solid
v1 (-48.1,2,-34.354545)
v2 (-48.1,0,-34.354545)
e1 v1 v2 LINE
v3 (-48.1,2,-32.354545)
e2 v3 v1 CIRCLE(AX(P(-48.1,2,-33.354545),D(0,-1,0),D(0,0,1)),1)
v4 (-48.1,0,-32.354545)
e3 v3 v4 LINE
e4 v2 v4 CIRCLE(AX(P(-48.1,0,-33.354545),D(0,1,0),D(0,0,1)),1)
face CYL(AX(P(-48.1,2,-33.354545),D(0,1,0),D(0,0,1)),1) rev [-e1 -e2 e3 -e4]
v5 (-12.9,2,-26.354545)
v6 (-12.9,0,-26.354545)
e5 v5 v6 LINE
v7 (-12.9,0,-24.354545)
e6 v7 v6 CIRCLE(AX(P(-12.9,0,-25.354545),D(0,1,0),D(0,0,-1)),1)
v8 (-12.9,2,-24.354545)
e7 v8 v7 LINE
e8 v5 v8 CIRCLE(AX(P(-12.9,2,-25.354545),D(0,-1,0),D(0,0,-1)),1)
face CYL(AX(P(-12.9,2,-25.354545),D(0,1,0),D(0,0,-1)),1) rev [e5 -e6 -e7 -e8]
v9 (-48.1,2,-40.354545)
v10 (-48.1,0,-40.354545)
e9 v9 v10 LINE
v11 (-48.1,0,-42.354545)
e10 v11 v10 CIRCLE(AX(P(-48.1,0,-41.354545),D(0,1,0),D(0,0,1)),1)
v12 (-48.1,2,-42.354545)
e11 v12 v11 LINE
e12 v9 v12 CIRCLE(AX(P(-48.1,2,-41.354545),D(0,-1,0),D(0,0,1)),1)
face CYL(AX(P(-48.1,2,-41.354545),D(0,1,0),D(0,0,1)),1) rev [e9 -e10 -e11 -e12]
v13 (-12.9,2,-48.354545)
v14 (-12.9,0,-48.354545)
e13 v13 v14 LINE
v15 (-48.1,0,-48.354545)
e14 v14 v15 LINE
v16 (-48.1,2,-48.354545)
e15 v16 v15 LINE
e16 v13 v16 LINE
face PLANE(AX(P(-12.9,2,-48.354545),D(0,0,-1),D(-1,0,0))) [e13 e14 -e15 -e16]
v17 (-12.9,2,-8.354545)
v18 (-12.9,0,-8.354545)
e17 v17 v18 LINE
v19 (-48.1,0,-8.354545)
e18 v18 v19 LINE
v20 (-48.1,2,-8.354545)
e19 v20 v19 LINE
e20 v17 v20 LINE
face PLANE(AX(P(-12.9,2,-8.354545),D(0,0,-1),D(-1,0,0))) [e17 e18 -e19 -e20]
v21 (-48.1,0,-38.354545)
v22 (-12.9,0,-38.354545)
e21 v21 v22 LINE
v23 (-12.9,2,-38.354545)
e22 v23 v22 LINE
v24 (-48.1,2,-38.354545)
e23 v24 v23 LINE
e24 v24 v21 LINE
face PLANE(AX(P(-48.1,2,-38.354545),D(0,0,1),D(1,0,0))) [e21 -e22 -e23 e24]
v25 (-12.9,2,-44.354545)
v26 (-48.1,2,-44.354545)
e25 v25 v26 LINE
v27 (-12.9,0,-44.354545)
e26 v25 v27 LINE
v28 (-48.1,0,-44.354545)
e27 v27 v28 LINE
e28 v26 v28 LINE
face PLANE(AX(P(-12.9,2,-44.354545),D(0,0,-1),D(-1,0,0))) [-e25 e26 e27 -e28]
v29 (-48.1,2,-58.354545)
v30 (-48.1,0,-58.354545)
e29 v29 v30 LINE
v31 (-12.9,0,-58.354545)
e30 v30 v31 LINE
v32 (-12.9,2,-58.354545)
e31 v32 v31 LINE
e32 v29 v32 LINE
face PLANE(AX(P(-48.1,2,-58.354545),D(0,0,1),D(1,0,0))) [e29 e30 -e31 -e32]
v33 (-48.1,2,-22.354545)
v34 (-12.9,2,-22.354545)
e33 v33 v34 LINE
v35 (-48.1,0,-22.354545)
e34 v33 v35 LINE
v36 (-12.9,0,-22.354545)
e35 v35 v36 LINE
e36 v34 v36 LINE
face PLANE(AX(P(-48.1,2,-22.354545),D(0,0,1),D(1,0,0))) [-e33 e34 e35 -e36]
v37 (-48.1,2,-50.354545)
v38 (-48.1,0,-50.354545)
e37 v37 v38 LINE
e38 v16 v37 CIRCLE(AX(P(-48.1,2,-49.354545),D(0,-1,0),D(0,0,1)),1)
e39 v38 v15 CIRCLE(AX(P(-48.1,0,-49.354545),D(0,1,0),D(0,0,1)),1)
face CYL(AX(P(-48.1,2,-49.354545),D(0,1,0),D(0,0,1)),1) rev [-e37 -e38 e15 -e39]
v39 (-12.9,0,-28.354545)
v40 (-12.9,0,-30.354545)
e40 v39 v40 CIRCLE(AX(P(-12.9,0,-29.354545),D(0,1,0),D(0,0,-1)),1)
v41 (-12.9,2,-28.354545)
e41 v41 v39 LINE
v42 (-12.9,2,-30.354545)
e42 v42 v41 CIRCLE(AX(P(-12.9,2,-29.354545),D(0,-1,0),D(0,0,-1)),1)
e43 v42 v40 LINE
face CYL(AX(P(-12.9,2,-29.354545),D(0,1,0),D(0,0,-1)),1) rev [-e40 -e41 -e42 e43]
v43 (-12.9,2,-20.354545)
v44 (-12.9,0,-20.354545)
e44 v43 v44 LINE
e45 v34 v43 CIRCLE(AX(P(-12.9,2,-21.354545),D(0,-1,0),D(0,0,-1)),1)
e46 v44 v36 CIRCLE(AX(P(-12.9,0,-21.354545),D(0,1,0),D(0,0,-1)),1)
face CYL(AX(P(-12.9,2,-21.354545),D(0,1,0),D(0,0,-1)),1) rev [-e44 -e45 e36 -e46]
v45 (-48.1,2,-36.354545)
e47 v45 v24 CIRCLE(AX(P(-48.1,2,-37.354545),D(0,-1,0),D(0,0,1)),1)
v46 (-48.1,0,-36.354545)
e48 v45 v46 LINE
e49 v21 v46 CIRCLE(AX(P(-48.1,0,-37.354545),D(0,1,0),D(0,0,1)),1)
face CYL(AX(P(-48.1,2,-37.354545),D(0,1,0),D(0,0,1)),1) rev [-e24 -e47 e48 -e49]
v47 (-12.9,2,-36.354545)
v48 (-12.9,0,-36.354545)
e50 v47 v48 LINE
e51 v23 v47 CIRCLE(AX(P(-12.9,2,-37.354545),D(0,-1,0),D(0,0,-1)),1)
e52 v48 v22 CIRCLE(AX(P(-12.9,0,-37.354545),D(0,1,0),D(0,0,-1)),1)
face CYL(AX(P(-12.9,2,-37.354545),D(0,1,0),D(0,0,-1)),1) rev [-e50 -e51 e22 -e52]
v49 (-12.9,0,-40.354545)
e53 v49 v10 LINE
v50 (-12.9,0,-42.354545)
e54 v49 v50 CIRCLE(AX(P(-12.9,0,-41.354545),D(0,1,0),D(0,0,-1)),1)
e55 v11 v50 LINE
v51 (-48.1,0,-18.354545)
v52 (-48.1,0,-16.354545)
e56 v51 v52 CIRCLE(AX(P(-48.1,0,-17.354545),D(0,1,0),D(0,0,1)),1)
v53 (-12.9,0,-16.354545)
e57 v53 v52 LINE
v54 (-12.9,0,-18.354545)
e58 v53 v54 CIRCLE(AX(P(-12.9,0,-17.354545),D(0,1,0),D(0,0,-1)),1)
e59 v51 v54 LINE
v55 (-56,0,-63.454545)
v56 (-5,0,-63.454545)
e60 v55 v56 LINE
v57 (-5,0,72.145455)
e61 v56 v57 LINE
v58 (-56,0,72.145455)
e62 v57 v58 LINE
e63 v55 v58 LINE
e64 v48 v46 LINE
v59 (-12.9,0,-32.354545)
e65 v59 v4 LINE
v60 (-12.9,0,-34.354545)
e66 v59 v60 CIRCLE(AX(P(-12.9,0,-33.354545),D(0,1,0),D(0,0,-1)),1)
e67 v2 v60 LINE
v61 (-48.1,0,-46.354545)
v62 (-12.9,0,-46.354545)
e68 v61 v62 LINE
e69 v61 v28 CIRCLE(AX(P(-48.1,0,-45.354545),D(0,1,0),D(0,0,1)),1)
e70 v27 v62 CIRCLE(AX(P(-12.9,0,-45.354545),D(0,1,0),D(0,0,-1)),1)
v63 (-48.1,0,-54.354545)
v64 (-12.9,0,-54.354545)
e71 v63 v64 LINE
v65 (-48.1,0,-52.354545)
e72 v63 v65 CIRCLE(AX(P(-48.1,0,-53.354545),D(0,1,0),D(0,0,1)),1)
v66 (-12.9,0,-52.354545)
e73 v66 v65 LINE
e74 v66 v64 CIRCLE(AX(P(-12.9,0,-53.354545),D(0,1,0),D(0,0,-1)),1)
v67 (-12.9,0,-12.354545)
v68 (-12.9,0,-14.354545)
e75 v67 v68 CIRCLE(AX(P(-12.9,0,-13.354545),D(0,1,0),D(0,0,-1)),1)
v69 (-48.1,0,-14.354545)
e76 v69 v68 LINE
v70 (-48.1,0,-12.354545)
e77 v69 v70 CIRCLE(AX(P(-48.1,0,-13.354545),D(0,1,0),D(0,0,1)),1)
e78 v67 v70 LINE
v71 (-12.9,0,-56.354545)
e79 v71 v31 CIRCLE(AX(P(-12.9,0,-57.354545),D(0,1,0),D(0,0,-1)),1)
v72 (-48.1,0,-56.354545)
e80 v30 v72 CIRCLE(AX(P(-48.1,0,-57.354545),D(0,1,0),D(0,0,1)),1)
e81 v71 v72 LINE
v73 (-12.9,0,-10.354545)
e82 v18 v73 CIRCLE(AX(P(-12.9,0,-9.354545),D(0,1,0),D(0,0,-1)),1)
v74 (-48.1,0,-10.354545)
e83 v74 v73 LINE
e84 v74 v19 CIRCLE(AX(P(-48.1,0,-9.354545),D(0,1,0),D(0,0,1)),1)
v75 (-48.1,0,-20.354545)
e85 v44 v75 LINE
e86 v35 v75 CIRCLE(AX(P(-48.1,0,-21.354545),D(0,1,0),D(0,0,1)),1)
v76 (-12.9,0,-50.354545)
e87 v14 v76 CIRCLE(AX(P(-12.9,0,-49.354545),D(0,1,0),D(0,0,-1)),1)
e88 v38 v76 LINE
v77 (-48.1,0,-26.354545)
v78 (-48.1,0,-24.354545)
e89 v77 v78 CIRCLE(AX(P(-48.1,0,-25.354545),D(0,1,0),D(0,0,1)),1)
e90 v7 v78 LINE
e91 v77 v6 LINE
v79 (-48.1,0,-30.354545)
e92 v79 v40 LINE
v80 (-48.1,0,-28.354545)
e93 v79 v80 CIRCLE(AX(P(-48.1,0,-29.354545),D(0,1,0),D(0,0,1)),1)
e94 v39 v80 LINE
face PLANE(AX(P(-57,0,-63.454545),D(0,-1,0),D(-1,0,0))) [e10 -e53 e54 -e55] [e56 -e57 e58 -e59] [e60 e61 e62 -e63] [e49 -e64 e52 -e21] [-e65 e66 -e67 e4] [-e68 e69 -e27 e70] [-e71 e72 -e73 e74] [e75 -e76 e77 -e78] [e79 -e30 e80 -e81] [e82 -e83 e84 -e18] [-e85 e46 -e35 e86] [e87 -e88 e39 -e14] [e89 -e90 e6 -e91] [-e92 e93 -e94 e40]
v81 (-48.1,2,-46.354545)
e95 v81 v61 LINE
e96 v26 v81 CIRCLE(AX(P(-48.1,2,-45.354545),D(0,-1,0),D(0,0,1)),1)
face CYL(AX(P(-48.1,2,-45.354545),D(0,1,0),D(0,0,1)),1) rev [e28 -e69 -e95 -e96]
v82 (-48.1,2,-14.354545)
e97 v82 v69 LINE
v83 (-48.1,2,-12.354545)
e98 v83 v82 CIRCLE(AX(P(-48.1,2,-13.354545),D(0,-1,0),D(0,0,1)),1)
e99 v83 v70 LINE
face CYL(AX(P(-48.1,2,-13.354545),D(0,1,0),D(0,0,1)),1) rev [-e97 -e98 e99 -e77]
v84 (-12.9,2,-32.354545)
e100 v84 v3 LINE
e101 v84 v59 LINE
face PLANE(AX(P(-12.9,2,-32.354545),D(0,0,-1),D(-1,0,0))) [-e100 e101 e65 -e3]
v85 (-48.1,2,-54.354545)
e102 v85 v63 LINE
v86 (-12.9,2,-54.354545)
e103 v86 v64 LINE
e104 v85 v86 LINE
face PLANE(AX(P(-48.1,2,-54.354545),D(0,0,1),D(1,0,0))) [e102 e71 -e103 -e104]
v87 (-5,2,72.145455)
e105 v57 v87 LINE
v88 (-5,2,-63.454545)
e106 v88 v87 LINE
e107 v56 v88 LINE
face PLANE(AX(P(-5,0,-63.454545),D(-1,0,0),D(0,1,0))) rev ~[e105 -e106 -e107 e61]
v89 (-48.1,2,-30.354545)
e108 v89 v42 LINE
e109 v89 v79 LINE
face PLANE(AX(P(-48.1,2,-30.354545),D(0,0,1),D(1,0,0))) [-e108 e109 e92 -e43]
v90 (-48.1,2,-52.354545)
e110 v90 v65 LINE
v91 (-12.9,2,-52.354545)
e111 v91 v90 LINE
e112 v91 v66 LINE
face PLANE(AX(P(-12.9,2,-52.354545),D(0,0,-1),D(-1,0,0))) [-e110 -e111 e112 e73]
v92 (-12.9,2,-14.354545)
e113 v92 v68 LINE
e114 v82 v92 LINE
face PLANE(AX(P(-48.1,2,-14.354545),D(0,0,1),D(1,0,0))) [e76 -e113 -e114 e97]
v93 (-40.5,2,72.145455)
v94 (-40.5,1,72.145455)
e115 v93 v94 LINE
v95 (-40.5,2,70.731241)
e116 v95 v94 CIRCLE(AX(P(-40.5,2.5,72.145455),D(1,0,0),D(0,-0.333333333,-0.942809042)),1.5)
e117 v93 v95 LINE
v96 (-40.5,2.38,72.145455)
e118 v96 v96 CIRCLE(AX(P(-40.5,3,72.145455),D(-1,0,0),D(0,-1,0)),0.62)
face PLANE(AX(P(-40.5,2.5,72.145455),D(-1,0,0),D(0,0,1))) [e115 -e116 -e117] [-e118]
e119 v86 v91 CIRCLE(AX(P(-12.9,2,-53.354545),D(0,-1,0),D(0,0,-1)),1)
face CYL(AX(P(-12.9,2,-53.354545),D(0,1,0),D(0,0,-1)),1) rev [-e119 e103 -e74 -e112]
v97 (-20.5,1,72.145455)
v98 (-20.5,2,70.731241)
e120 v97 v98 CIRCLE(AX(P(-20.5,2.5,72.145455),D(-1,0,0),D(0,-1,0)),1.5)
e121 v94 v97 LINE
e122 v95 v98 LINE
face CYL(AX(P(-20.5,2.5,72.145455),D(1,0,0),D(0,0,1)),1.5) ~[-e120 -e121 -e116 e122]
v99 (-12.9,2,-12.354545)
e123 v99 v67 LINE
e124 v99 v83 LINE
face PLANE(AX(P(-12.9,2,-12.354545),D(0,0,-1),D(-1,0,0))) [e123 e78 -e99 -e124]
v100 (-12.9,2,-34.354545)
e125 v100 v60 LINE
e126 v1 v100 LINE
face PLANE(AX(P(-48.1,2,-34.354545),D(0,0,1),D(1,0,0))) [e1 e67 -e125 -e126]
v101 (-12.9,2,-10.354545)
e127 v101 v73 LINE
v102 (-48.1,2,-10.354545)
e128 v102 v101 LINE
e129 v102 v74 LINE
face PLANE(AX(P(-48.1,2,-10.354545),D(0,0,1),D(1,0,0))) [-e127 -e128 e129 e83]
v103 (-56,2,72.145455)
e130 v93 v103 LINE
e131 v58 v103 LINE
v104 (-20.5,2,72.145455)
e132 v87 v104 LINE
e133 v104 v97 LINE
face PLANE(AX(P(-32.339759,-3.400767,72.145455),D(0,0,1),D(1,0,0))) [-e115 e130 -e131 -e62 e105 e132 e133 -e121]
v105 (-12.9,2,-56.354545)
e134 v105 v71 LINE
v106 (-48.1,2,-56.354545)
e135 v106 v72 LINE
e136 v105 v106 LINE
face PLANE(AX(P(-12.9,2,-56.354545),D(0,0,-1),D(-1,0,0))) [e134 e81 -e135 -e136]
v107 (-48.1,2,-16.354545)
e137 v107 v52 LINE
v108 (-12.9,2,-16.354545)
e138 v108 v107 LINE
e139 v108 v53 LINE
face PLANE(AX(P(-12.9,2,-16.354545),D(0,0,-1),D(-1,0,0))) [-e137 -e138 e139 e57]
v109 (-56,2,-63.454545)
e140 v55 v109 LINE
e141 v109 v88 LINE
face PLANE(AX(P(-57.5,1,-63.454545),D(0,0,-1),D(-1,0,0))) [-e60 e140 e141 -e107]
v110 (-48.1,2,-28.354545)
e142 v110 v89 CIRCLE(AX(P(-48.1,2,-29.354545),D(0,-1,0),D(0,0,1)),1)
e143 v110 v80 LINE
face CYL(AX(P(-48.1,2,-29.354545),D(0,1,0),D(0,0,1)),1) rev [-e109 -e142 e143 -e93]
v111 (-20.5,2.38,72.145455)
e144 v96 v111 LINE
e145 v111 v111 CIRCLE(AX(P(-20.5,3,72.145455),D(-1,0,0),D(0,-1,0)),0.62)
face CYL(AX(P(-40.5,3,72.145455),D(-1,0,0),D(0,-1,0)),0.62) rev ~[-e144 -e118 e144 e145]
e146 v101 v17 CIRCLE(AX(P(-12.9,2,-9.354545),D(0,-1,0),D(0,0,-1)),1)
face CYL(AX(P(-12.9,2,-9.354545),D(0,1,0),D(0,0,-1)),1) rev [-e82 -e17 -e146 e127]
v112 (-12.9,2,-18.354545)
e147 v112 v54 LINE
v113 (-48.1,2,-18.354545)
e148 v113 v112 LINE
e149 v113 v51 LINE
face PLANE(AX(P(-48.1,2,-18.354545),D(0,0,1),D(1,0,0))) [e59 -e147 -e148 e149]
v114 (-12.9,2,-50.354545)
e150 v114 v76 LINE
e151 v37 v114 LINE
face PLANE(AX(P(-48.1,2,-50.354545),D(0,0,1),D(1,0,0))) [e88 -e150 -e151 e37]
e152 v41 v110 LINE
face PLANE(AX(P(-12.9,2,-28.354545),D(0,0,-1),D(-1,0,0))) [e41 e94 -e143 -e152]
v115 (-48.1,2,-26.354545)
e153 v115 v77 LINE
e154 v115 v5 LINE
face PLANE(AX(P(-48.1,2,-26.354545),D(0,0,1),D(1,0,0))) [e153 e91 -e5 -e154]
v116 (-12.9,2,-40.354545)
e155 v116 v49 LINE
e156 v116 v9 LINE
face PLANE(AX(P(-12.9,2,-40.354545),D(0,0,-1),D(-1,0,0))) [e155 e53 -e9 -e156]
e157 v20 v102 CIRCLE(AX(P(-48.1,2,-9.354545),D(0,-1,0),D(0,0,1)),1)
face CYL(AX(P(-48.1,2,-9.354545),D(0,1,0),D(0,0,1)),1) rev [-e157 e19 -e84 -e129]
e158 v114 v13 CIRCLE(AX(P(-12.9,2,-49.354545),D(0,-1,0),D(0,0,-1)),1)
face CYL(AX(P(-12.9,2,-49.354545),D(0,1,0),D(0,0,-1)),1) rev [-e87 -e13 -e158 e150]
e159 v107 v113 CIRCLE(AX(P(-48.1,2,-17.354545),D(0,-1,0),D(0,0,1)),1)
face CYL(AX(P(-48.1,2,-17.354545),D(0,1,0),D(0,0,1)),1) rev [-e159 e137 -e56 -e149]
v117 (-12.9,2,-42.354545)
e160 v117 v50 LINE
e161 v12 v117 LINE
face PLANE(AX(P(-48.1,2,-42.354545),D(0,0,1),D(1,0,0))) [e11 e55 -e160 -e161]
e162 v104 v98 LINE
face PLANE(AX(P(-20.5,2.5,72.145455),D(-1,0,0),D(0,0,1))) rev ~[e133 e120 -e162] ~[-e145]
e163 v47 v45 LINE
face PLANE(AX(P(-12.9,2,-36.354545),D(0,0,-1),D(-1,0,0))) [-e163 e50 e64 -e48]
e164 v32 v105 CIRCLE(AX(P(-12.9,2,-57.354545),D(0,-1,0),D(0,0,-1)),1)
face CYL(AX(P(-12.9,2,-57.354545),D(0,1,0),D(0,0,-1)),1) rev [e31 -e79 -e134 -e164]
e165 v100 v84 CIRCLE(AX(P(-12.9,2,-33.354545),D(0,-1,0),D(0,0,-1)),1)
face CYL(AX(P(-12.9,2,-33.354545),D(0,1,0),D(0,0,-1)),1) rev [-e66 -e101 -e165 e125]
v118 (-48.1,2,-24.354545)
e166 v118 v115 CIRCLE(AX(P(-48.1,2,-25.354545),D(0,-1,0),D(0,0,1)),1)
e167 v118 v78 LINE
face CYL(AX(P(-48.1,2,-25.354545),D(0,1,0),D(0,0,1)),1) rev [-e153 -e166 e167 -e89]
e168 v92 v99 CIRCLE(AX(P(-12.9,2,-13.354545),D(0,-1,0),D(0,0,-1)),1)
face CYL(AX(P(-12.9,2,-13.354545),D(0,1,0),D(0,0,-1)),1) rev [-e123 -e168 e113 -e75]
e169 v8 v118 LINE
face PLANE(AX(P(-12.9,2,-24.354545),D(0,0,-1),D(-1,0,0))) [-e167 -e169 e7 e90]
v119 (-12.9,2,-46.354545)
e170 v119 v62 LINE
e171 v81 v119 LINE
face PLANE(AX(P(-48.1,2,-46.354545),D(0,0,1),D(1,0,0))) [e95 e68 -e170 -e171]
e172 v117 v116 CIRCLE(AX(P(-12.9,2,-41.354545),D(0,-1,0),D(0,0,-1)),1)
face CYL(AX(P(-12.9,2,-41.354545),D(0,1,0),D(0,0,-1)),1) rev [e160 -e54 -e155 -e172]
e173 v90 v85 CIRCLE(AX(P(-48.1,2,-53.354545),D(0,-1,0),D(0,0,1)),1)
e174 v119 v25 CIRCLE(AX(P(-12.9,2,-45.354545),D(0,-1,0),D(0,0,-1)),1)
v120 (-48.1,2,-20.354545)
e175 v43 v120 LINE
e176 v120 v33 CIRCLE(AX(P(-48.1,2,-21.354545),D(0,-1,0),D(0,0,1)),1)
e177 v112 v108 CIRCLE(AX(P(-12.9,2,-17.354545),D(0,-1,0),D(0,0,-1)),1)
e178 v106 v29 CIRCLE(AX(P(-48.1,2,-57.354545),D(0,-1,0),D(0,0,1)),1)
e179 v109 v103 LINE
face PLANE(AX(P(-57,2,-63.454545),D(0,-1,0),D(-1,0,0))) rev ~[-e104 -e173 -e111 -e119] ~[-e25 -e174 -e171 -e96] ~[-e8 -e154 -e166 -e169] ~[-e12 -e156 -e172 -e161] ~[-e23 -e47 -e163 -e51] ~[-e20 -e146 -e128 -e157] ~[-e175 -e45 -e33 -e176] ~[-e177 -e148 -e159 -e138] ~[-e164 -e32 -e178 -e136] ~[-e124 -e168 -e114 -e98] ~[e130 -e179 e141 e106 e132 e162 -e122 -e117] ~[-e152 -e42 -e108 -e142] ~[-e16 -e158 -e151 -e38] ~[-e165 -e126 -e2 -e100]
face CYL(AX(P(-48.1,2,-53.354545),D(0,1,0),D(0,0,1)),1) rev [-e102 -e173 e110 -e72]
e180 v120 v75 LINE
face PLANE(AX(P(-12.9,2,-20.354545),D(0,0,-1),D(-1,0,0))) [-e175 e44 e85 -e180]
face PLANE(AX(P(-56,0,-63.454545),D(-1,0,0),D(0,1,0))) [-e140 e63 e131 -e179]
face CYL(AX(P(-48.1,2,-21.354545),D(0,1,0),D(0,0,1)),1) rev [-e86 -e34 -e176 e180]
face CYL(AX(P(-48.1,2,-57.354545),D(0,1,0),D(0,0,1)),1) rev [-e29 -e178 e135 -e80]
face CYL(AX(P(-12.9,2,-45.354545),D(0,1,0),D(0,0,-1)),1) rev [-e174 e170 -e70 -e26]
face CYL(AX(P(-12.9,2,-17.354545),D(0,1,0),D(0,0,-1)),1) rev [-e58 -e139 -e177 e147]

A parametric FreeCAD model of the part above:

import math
import FreeCAD as App
import Part
import Sketcher

doc = App.newDocument("Part")
body = doc.addObject("PartDesign::Body", "Body")

sketch1 = doc.addObject("Sketcher::SketchObject", "Sketch")
body.addObject(sketch1)
sketch1.AttachmentSupport = (doc.XZ_Plane, [""])
sketch1.MapMode = "FlatFace"
sketch1.addGeometry(Part.LineSegment(App.Vector(-56, -63.454545, 0), App.Vector(-56, 72.545455, 0)), False)
sketch1.addGeometry(Part.LineSegment(App.Vector(-56, 72.545455, 0), App.Vector(-5, 72.545455, 0)), False)
sketch1.addGeometry(Part.LineSegment(App.Vector(-5, 72.545455, 0), App.Vector(-5, -63.454545, 0)), False)
sketch1.addGeometry(Part.LineSegment(App.Vector(-5, -63.454545, 0), App.Vector(-56, -63.454545, 0)), False)
sketch1.addConstraint(Sketcher.Constraint("Coincident", 0, 2, 1, 1))
sketch1.addConstraint(Sketcher.Constraint("Coincident", 1, 2, 2, 1))
sketch1.addConstraint(Sketcher.Constraint("Coincident", 2, 2, 3, 1))
sketch1.addConstraint(Sketcher.Constraint("Coincident", 3, 2, 0, 1))
sketch1.addConstraint(Sketcher.Constraint("Vertical", 0))
sketch1.addConstraint(Sketcher.Constraint("Horizontal", 1))
sketch1.addConstraint(Sketcher.Constraint("Vertical", 2))
sketch1.addConstraint(Sketcher.Constraint("Horizontal", 3))
sketch1.addConstraint(Sketcher.Constraint("DistanceX", 1, 1, 1, 2, 51.0))
sketch1.addConstraint(Sketcher.Constraint("DistanceY", 0, 1, 0, 2, 136.0))
sketch1.addConstraint(Sketcher.Constraint("DistanceX", 0, 2, -1, 1, 56.0))
sketch1.addConstraint(Sketcher.Constraint("DistanceY", -1, 1, 0, 2, 72.545455))
pad1 = doc.addObject("PartDesign::Pad", "Pad")
body.addObject(pad1)
pad1.Profile = sketch1
pad1.Length = 2
pad1.Reversed = True

sketch2 = doc.addObject("Sketcher::SketchObject", "Sketch001")
body.addObject(sketch2)
sketch2.AttachmentSupport = (doc.XZ_Plane, [""])
sketch2.MapMode = "FlatFace"
sketch2.AttachmentOffset = App.Placement(App.Vector(0, 0, -2), App.Rotation())
sketch2.addGeometry(Part.LineSegment(App.Vector(-12.9, -58.354545, 0), App.Vector(-48.1, -58.354545, 0)), False)
sketch2.addGeometry(Part.ArcOfCircle(Part.Circle(App.Vector(-48.1, -57.354545, 0), App.Vector(0, 0, 1), 1), math.radians(90), math.radians(270)), False)
sketch2.addGeometry(Part.LineSegment(App.Vector(-48.1, -56.354545, 0), App.Vector(-12.9, -56.354545, 0)), False)
sketch2.addGeometry(Part.ArcOfCircle(Part.Circle(App.Vector(-12.9, -57.354545, 0), App.Vector(0, 0, 1), 1), math.radians(-90), math.radians(90)), False)
sketch2.addGeometry(Part.LineSegment(App.Vector(-12.9, -54.354545, 0), App.Vector(-48.1, -54.354545, 0)), False)
sketch2.addGeometry(Part.ArcOfCircle(Part.Circle(App.Vector(-48.1, -53.354545, 0), App.Vector(0, 0, 1), 1), math.radians(90), math.radians(270)), False)
sketch2.addGeometry(Part.LineSegment(App.Vector(-48.1, -52.354545, 0), App.Vector(-12.9, -52.354545, 0)), False)
sketch2.addGeometry(Part.ArcOfCircle(Part.Circle(App.Vector(-12.9, -53.354545, 0), App.Vector(0, 0, 1), 1), math.radians(-90), math.radians(90)), False)
sketch2.addGeometry(Part.LineSegment(App.Vector(-12.9, -50.354545, 0), App.Vector(-48.1, -50.354545, 0)), False)
sketch2.addGeometry(Part.ArcOfCircle(Part.Circle(App.Vector(-48.1, -49.354545, 0), App.Vector(0, 0, 1), 1), math.radians(90), math.radians(270)), False)
sketch2.addGeometry(Part.LineSegment(App.Vector(-48.1, -48.354545, 0), App.Vector(-12.9, -48.354545, 0)), False)
sketch2.addGeometry(Part.ArcOfCircle(Part.Circle(App.Vector(-12.9, -49.354545, 0), App.Vector(0, 0, 1), 1), math.radians(-90), math.radians(90)), False)
sketch2.addGeometry(Part.LineSegment(App.Vector(-12.9, -46.354545, 0), App.Vector(-48.1, -46.354545, 0)), False)
sketch2.addGeometry(Part.ArcOfCircle(Part.Circle(App.Vector(-48.1, -45.354545, 0), App.Vector(0, 0, 1), 1), math.radians(90), math.radians(270)), False)
sketch2.addGeometry(Part.LineSegment(App.Vector(-48.1, -44.354545, 0), App.Vector(-12.9, -44.354545, 0)), False)
sketch2.addGeometry(Part.ArcOfCircle(Part.Circle(App.Vector(-12.9, -45.354545, 0), App.Vector(0, 0, 1), 1), math.radians(-90), math.radians(90)), False)
sketch2.addGeometry(Part.LineSegment(App.Vector(-12.9, -42.354545, 0), App.Vector(-48.1, -42.354545, 0)), False)
sketch2.addGeometry(Part.ArcOfCircle(Part.Circle(App.Vector(-48.1, -41.354545, 0), App.Vector(0, 0, 1), 1), math.radians(90), math.radians(270)), False)
sketch2.addGeometry(Part.LineSegment(App.Vector(-48.1, -40.354545, 0), App.Vector(-12.9, -40.354545, 0)), False)
sketch2.addGeometry(Part.ArcOfCircle(Part.Circle(App.Vector(-12.9, -41.354545, 0), App.Vector(0, 0, 1), 1), math.radians(-90), math.radians(90)), False)
sketch2.addGeometry(Part.LineSegment(App.Vector(-12.9, -38.354545, 0), App.Vector(-48.1, -38.354545, 0)), False)
sketch2.addGeometry(Part.ArcOfCircle(Part.Circle(App.Vector(-48.1, -37.354545, 0), App.Vector(0, 0, 1), 1), math.radians(90), math.radians(270)), False)
sketch2.addGeometry(Part.LineSegment(App.Vector(-48.1, -36.354545, 0), App.Vector(-12.9, -36.354545, 0)), False)
sketch2.addGeometry(Part.ArcOfCircle(Part.Circle(App.Vector(-12.9, -37.354545, 0), App.Vector(0, 0, 1), 1), math.radians(-90), math.radians(90)), False)
sketch2.addGeometry(Part.LineSegment(App.Vector(-12.9, -34.354545, 0), App.Vector(-48.1, -34.354545, 0)), False)
sketch2.addGeometry(Part.ArcOfCircle(Part.Circle(App.Vector(-48.1, -33.354545, 0), App.Vector(0, 0, 1), 1), math.radians(90), math.radians(270)), False)
sketch2.addGeometry(Part.LineSegment(App.Vector(-48.1, -32.354545, 0), App.Vector(-12.9, -32.354545, 0)), False)
sketch2.addGeometry(Part.ArcOfCircle(Part.Circle(App.Vector(-12.9, -33.354545, 0), App.Vector(0, 0, 1), 1), math.radians(-90), math.radians(90)), False)
sketch2.addGeometry(Part.LineSegment(App.Vector(-12.9, -30.354545, 0), App.Vector(-48.1, -30.354545, 0)), False)
sketch2.addGeometry(Part.ArcOfCircle(Part.Circle(App.Vector(-48.1, -29.354545, 0), App.Vector(0, 0, 1), 1), math.radians(90), math.radians(270)), False)
sketch2.addGeometry(Part.LineSegment(App.Vector(-48.1, -28.354545, 0), App.Vector(-12.9, -28.354545, 0)), False)
sketch2.addGeometry(Part.ArcOfCircle(Part.Circle(App.Vector(-12.9, -29.354545, 0), App.Vector(0, 0, 1), 1), math.radians(-90), math.radians(90)), False)
sketch2.addGeometry(Part.LineSegment(App.Vector(-12.9, -26.354545, 0), App.Vector(-48.1, -26.354545, 0)), False)
sketch2.addGeometry(Part.ArcOfCircle(Part.Circle(App.Vector(-48.1, -25.354545, 0), App.Vector(0, 0, 1), 1), math.radians(90), math.radians(270)), False)
sketch2.addGeometry(Part.LineSegment(App.Vector(-48.1, -24.354545, 0), App.Vector(-12.9, -24.354545, 0)), False)
sketch2.addGeometry(Part.ArcOfCircle(Part.Circle(App.Vector(-12.9, -25.354545, 0), App.Vector(0, 0, 1), 1), math.radians(-90), math.radians(90)), False)
sketch2.addGeometry(Part.LineSegment(App.Vector(-12.9, -22.354545, 0), App.Vector(-48.1, -22.354545, 0)), False)
sketch2.addGeometry(Part.ArcOfCircle(Part.Circle(App.Vector(-48.1, -21.354545, 0), App.Vector(0, 0, 1), 1), math.radians(90), math.radians(270)), False)
sketch2.addGeometry(Part.LineSegment(App.Vector(-48.1, -20.354545, 0), App.Vector(-12.9, -20.354545, 0)), False)
sketch2.addGeometry(Part.ArcOfCircle(Part.Circle(App.Vector(-12.9, -21.354545, 0), App.Vector(0, 0, 1), 1), math.radians(-90), math.radians(90)), False)
sketch2.addGeometry(Part.LineSegment(App.Vector(-12.9, -18.354545, 0), App.Vector(-48.1, -18.354545, 0)), False)
sketch2.addGeometry(Part.ArcOfCircle(Part.Circle(App.Vector(-48.1, -17.354545, 0), App.Vector(0, 0, 1), 1), math.radians(90), math.radians(270)), False)
sketch2.addGeometry(Part.LineSegment(App.Vector(-48.1, -16.354545, 0), App.Vector(-12.9, -16.354545, 0)), False)
sketch2.addGeometry(Part.ArcOfCircle(Part.Circle(App.Vector(-12.9, -17.354545, 0), App.Vector(0, 0, 1), 1), math.radians(-90), math.radians(90)), False)
sketch2.addGeometry(Part.LineSegment(App.Vector(-12.9, -14.354545, 0), App.Vector(-48.1, -14.354545, 0)), False)
sketch2.addGeometry(Part.ArcOfCircle(Part.Circle(App.Vector(-48.1, -13.354545, 0), App.Vector(0, 0, 1), 1), math.radians(90), math.radians(270)), False)
sketch2.addGeometry(Part.LineSegment(App.Vector(-48.1, -12.354545, 0), App.Vector(-12.9, -12.354545, 0)), False)
sketch2.addGeometry(Part.ArcOfCircle(Part.Circle(App.Vector(-12.9, -13.354545, 0), App.Vector(0, 0, 1), 1), math.radians(-90), math.radians(90)), False)
sketch2.addGeometry(Part.LineSegment(App.Vector(-12.9, -10.354545, 0), App.Vector(-48.1, -10.354545, 0)), False)
sketch2.addGeometry(Part.ArcOfCircle(Part.Circle(App.Vector(-48.1, -9.354545, 0), App.Vector(0, 0, 1), 1), math.radians(90), math.radians(270)), False)
sketch2.addGeometry(Part.LineSegment(App.Vector(-48.1, -8.354545, 0), App.Vector(-12.9, -8.354545, 0)), False)
sketch2.addGeometry(Part.ArcOfCircle(Part.Circle(App.Vector(-12.9, -9.354545, 0), App.Vector(0, 0, 1), 1), math.radians(-90), math.radians(90)), False)
sketch2.addConstraint(Sketcher.Constraint("Tangent", 0, 2, 1, 2))
sketch2.addConstraint(Sketcher.Constraint("Tangent", 1, 1, 2, 1))
sketch2.addConstraint(Sketcher.Constraint("Tangent", 2, 2, 3, 2))
sketch2.addConstraint(Sketcher.Constraint("Tangent", 3, 1, 0, 1))
sketch2.addConstraint(Sketcher.Constraint("Tangent", 4, 2, 5, 2))
sketch2.addConstraint(Sketcher.Constraint("Tangent", 5, 1, 6, 1))
sketch2.addConstraint(Sketcher.Constraint("Tangent", 6, 2, 7, 2))
sketch2.addConstraint(Sketcher.Constraint("Tangent", 7, 1, 4, 1))
sketch2.addConstraint(Sketcher.Constraint("Tangent", 8, 2, 9, 2))
sketch2.addConstraint(Sketcher.Constraint("Tangent", 9, 1, 10, 1))
sketch2.addConstraint(Sketcher.Constraint("Tangent", 10, 2, 11, 2))
sketch2.addConstraint(Sketcher.Constraint("Tangent", 11, 1, 8, 1))
sketch2.addConstraint(Sketcher.Constraint("Tangent", 12, 2, 13, 2))
sketch2.addConstraint(Sketcher.Constraint("Tangent", 13, 1, 14, 1))
sketch2.addConstraint(Sketcher.Constraint("Tangent", 14, 2, 15, 2))
sketch2.addConstraint(Sketcher.Constraint("Tangent", 15, 1, 12, 1))
sketch2.addConstraint(Sketcher.Constraint("Tangent", 16, 2, 17, 2))
sketch2.addConstraint(Sketcher.Constraint("Tangent", 17, 1, 18, 1))
sketch2.addConstraint(Sketcher.Constraint("Tangent", 18, 2, 19, 2))
sketch2.addConstraint(Sketcher.Constraint("Tangent", 19, 1, 16, 1))
sketch2.addConstraint(Sketcher.Constraint("Tangent", 20, 2, 21, 2))
sketch2.addConstraint(Sketcher.Constraint("Tangent", 21, 1, 22, 1))
sketch2.addConstraint(Sketcher.Constraint("Tangent", 22, 2, 23, 2))
sketch2.addConstraint(Sketcher.Constraint("Tangent", 23, 1, 20, 1))
sketch2.addConstraint(Sketcher.Constraint("Tangent", 24, 2, 25, 2))
sketch2.addConstraint(Sketcher.Constraint("Tangent", 25, 1, 26, 1))
sketch2.addConstraint(Sketcher.Constraint("Tangent", 26, 2, 27, 2))
sketch2.addConstraint(Sketcher.Constraint("Tangent", 27, 1, 24, 1))
sketch2.addConstraint(Sketcher.Constraint("Tangent", 28, 2, 29, 2))
sketch2.addConstraint(Sketcher.Constraint("Tangent", 29, 1, 30, 1))
sketch2.addConstraint(Sketcher.Constraint("Tangent", 30, 2, 31, 2))
sketch2.addConstraint(Sketcher.Constraint("Tangent", 31, 1, 28, 1))
sketch2.addConstraint(Sketcher.Constraint("Tangent", 32, 2, 33, 2))
sketch2.addConstraint(Sketcher.Constraint("Tangent", 33, 1, 34, 1))
sketch2.addConstraint(Sketcher.Constraint("Tangent", 34, 2, 35, 2))
sketch2.addConstraint(Sketcher.Constraint("Tangent", 35, 1, 32, 1))
sketch2.addConstraint(Sketcher.Constraint("Tangent", 36, 2, 37, 2))
sketch2.addConstraint(Sketcher.Constraint("Tangent", 37, 1, 38, 1))
sketch2.addConstraint(Sketcher.Constraint("Tangent", 38, 2, 39, 2))
sketch2.addConstraint(Sketcher.Constraint("Tangent", 39, 1, 36, 1))
sketch2.addConstraint(Sketcher.Constraint("Tangent", 40, 2, 41, 2))
sketch2.addConstraint(Sketcher.Constraint("Tangent", 41, 1, 42, 1))
sketch2.addConstraint(Sketcher.Constraint("Tangent", 42, 2, 43, 2))
sketch2.addConstraint(Sketcher.Constraint("Tangent", 43, 1, 40, 1))
sketch2.addConstraint(Sketcher.Constraint("Tangent", 44, 2, 45, 2))
sketch2.addConstraint(Sketcher.Constraint("Tangent", 45, 1, 46, 1))
sketch2.addConstraint(Sketcher.Constraint("Tangent", 46, 2, 47, 2))
sketch2.addConstraint(Sketcher.Constraint("Tangent", 47, 1, 44, 1))
sketch2.addConstraint(Sketcher.Constraint("Tangent", 48, 2, 49, 2))
sketch2.addConstraint(Sketcher.Constraint("Tangent", 49, 1, 50, 1))
sketch2.addConstraint(Sketcher.Constraint("Tangent", 50, 2, 51, 2))
sketch2.addConstraint(Sketcher.Constraint("Tangent", 51, 1, 48, 1))
sketch2.addConstraint(Sketcher.Constraint("Horizontal", 0))
sketch2.addConstraint(Sketcher.Constraint("Horizontal", 2))
sketch2.addConstraint(Sketcher.Constraint("Horizontal", 4))
sketch2.addConstraint(Sketcher.Constraint("Horizontal", 6))
sketch2.addConstraint(Sketcher.Constraint("Horizontal", 8))
sketch2.addConstraint(Sketcher.Constraint("Horizontal", 10))
sketch2.addConstraint(Sketcher.Constraint("Horizontal", 12))
sketch2.addConstraint(Sketcher.Constraint("Horizontal", 14))
sketch2.addConstraint(Sketcher.Constraint("Horizontal", 16))
sketch2.addConstraint(Sketcher.Constraint("Horizontal", 18))
sketch2.addConstraint(Sketcher.Constraint("Horizontal", 20))
sketch2.addConstraint(Sketcher.Constraint("Horizontal", 22))
sketch2.addConstraint(Sketcher.Constraint("Horizontal", 24))
sketch2.addConstraint(Sketcher.Constraint("Horizontal", 26))
sketch2.addConstraint(Sketcher.Constraint("Horizontal", 28))
sketch2.addConstraint(Sketcher.Constraint("Horizontal", 30))
sketch2.addConstraint(Sketcher.Constraint("Horizontal", 32))
sketch2.addConstraint(Sketcher.Constraint("Horizontal", 34))
sketch2.addConstraint(Sketcher.Constraint("Horizontal", 36))
sketch2.addConstraint(Sketcher.Constraint("Horizontal", 38))
sketch2.addConstraint(Sketcher.Constraint("Horizontal", 40))
sketch2.addConstraint(Sketcher.Constraint("Horizontal", 42))
sketch2.addConstraint(Sketcher.Constraint("Horizontal", 44))
sketch2.addConstraint(Sketcher.Constraint("Horizontal", 46))
sketch2.addConstraint(Sketcher.Constraint("Horizontal", 48))
sketch2.addConstraint(Sketcher.Constraint("Horizontal", 50))
sketch2.addConstraint(Sketcher.Constraint("Equal", 3, 5))
sketch2.addConstraint(Sketcher.Constraint("Equal", 7, 9))
sketch2.addConstraint(Sketcher.Constraint("Equal", 11, 13))
sketch2.addConstraint(Sketcher.Constraint("Equal", 15, 17))
sketch2.addConstraint(Sketcher.Constraint("Equal", 19, 21))
sketch2.addConstraint(Sketcher.Constraint("Equal", 23, 25))
sketch2.addConstraint(Sketcher.Constraint("Equal", 27, 29))
sketch2.addConstraint(Sketcher.Constraint("Equal", 31, 33))
sketch2.addConstraint(Sketcher.Constraint("Equal", 35, 37))
sketch2.addConstraint(Sketcher.Constraint("Equal", 39, 41))
sketch2.addConstraint(Sketcher.Constraint("Equal", 43, 45))
sketch2.addConstraint(Sketcher.Constraint("Equal", 47, 49))
sketch2.addConstraint(Sketcher.Constraint("Vertical", 1, 3, 5, 3))
sketch2.addConstraint(Sketcher.Constraint("Vertical", 3, 3, 7, 3))
sketch2.addConstraint(Sketcher.Constraint("Vertical", 5, 3, 9, 3))
sketch2.addConstraint(Sketcher.Constraint("Vertical", 7, 3, 11, 3))
sketch2.addConstraint(Sketcher.Constraint("Vertical", 9, 3, 13, 3))
sketch2.addConstraint(Sketcher.Constraint("Vertical", 11, 3, 15, 3))
sketch2.addConstraint(Sketcher.Constraint("Vertical", 13, 3, 17, 3))
sketch2.addConstraint(Sketcher.Constraint("Vertical", 15, 3, 19, 3))
sketch2.addConstraint(Sketcher.Constraint("Vertical", 17, 3, 21, 3))
sketch2.addConstraint(Sketcher.Constraint("Vertical", 19, 3, 23, 3))
sketch2.addConstraint(Sketcher.Constraint("Vertical", 21, 3, 25, 3))
sketch2.addConstraint(Sketcher.Constraint("Vertical", 23, 3, 27, 3))
sketch2.addConstraint(Sketcher.Constraint("Vertical", 25, 3, 29, 3))
sketch2.addConstraint(Sketcher.Constraint("Vertical", 27, 3, 31, 3))
sketch2.addConstraint(Sketcher.Constraint("Vertical", 29, 3, 33, 3))
sketch2.addConstraint(Sketcher.Constraint("Vertical", 31, 3, 35, 3))
sketch2.addConstraint(Sketcher.Constraint("Vertical", 33, 3, 37, 3))
sketch2.addConstraint(Sketcher.Constraint("Vertical", 35, 3, 39, 3))
sketch2.addConstraint(Sketcher.Constraint("Vertical", 37, 3, 41, 3))
sketch2.addConstraint(Sketcher.Constraint("Vertical", 39, 3, 43, 3))
sketch2.addConstraint(Sketcher.Constraint("Vertical", 41, 3, 45, 3))
sketch2.addConstraint(Sketcher.Constraint("Vertical", 43, 3, 47, 3))
sketch2.addConstraint(Sketcher.Constraint("Vertical", 45, 3, 49, 3))
sketch2.addConstraint(Sketcher.Constraint("Vertical", 47, 3, 51, 3))
sketch2.addConstraint(Sketcher.Constraint("Radius", 1, 1.0))
sketch2.addConstraint(Sketcher.Constraint("DistanceX", 0, 2, 0, 1, 35.2))
sketch2.addConstraint(Sketcher.Constraint("DistanceX", 1, 3, -1, 1, 48.1))
sketch2.addConstraint(Sketcher.Constraint("DistanceY", 1, 3, -1, 1, 57.354545))
sketch2.addConstraint(Sketcher.Constraint("DistanceY", 5, 3, -1, 1, 53.354545))
sketch2.addConstraint(Sketcher.Constraint("DistanceY", 9, 3, -1, 1, 49.354545))
sketch2.addConstraint(Sketcher.Constraint("DistanceY", 13, 3, -1, 1, 45.354545))
sketch2.addConstraint(Sketcher.Constraint("DistanceY", 17, 3, -1, 1, 41.354545))
sketch2.addConstraint(Sketcher.Constraint("DistanceY", 21, 3, -1, 1, 37.354545))
sketch2.addConstraint(Sketcher.Constraint("DistanceY", 25, 3, -1, 1, 33.354545))
sketch2.addConstraint(Sketcher.Constraint("DistanceY", 29, 3, -1, 1, 29.354545))
sketch2.addConstraint(Sketcher.Constraint("DistanceY", 33, 3, -1, 1, 25.354545))
sketch2.addConstraint(Sketcher.Constraint("DistanceY", 37, 3, -1, 1, 21.354545))
sketch2.addConstraint(Sketcher.Constraint("DistanceY", 41, 3, -1, 1, 17.354545))
sketch2.addConstraint(Sketcher.Constraint("DistanceY", 45, 3, -1, 1, 13.354545))
sketch2.addConstraint(Sketcher.Constraint("DistanceY", 49, 3, -1, 1, 9.354545))
pocket1 = doc.addObject("PartDesign::Pocket", "Pocket")
body.addObject(pocket1)
pocket1.Profile = sketch2
pocket1.Length = 10
pocket1.Reversed = True

sketch3 = doc.addObject("Sketcher::SketchObject", "Sketch002")
body.addObject(sketch3)
sketch3.AttachmentSupport = (doc.XY_Plane, [""])
sketch3.MapMode = "FlatFace"
sketch3.AttachmentOffset = App.Placement(App.Vector(0, 0, -63.454545), App.Rotation())
sketch3.addGeometry(Part.LineSegment(App.Vector(-56, 2, 0), App.Vector(-56, 0, 0)), False)
sketch3.addGeometry(Part.LineSegment(App.Vector(-56, 0, 0), App.Vector(-57, 0, 0)), False)
sketch3.addGeometry(Part.LineSegment(App.Vector(-57, 0, 0), App.Vector(-57, 2, 0)), False)
sketch3.addGeometry(Part.LineSegment(App.Vector(-57, 2, 0), App.Vector(-56, 2, 0)), False)
sketch3.addGeometry(Part.LineSegment(App.Vector(-4, 2, 0), App.Vector(-4, 0, 0)), False)
sketch3.addGeometry(Part.LineSegment(App.Vector(-4, 0, 0), App.Vector(-5, 0, 0)), False)
sketch3.addGeometry(Part.LineSegment(App.Vector(-5, 0, 0), App.Vector(-5, 2, 0)), False)
sketch3.addGeometry(Part.LineSegment(App.Vector(-5, 2, 0), App.Vector(-4, 2, 0)), False)
sketch3.addConstraint(Sketcher.Constraint("Coincident", 0, 2, 1, 1))
sketch3.addConstraint(Sketcher.Constraint("Coincident", 1, 2, 2, 1))
sketch3.addConstraint(Sketcher.Constraint("Coincident", 2, 2, 3, 1))
sketch3.addConstraint(Sketcher.Constraint("Coincident", 3, 2, 0, 1))
sketch3.addConstraint(Sketcher.Constraint("Coincident", 4, 2, 5, 1))
sketch3.addConstraint(Sketcher.Constraint("Coincident", 5, 2, 6, 1))
sketch3.addConstraint(Sketcher.Constraint("Coincident", 6, 2, 7, 1))
sketch3.addConstraint(Sketcher.Constraint("Coincident", 7, 2, 4, 1))
sketch3.addConstraint(Sketcher.Constraint("Vertical", 0))
sketch3.addConstraint(Sketcher.Constraint("Horizontal", 1))
sketch3.addConstraint(Sketcher.Constraint("Vertical", 2))
sketch3.addConstraint(Sketcher.Constraint("Horizontal", 3))
sketch3.addConstraint(Sketcher.Constraint("Vertical", 4))
sketch3.addConstraint(Sketcher.Constraint("Horizontal", 5))
sketch3.addConstraint(Sketcher.Constraint("Vertical", 6))
sketch3.addConstraint(Sketcher.Constraint("Horizontal", 7))
sketch3.addConstraint(Sketcher.Constraint("PointOnObject", 0, 2, -1))
sketch3.addConstraint(Sketcher.Constraint("PointOnObject", 4, 2, -1))
sketch3.addConstraint(Sketcher.Constraint("Horizontal", 3, 2, 6, 2))
sketch3.addConstraint(Sketcher.Constraint("Equal", 3, 5))
sketch3.addConstraint(Sketcher.Constraint("DistanceX", 1, 2, 1, 1, 1.0))
sketch3.addConstraint(Sketcher.Constraint("DistanceY", 0, 2, 0, 1, 2.0))
sketch3.addConstraint(Sketcher.Constraint("DistanceX", 0, 2, -1, 1, 56.0))
sketch3.addConstraint(Sketcher.Constraint("DistanceX", 4, 2, -1, 1, 4.0))
pad2 = doc.addObject("PartDesign::Pad", "Pad001")
body.addObject(pad2)
pad2.Profile = sketch3
pad2.Length = 136

sketch4 = doc.addObject("Sketcher::SketchObject", "Sketch003")
body.addObject(sketch4)
sketch4.AttachmentSupport = (doc.XY_Plane, [""])
sketch4.MapMode = "FlatFace"
sketch4.AttachmentOffset = App.Placement(App.Vector(0, 0, -63.454545), App.Rotation())
sketch4.addGeometry(Part.LineSegment(App.Vector(-57, 2, 0), App.Vector(-57, 0, 0)), False)
sketch4.addGeometry(Part.LineSegment(App.Vector(-57, 0, 0), App.Vector(-58, 0, 0)), False)
sketch4.addGeometry(Part.LineSegment(App.Vector(-58, 0, 0), App.Vector(-58, 2, 0)), False)
sketch4.addGeometry(Part.LineSegment(App.Vector(-58, 2, 0), App.Vector(-57, 2, 0)), False)
sketch4.addGeometry(Part.LineSegment(App.Vector(-3, 2, 0), App.Vector(-3, 0, 0)), False)
sketch4.addGeometry(Part.LineSegment(App.Vector(-3, 0, 0), App.Vector(-4, 0, 0)), False)
sketch4.addGeometry(Part.LineSegment(App.Vector(-4, 0, 0), App.Vector(-4, 2, 0)), False)
sketch4.addGeometry(Part.LineSegment(App.Vector(-4, 2, 0), App.Vector(-3, 2, 0)), False)
sketch4.addConstraint(Sketcher.Constraint("Coincident", 0, 2, 1, 1))
sketch4.addConstraint(Sketcher.Constraint("Coincident", 1, 2, 2, 1))
sketch4.addConstraint(Sketcher.Constraint("Coincident", 2, 2, 3, 1))
sketch4.addConstraint(Sketcher.Constraint("Coincident", 3, 2, 0, 1))
sketch4.addConstraint(Sketcher.Constraint("Coincident", 4, 2, 5, 1))
sketch4.addConstraint(Sketcher.Constraint("Coincident", 5, 2, 6, 1))
sketch4.addConstraint(Sketcher.Constraint("Coincident", 6, 2, 7, 1))
sketch4.addConstraint(Sketcher.Constraint("Coincident", 7, 2, 4, 1))
sketch4.addConstraint(Sketcher.Constraint("Vertical", 0))
sketch4.addConstraint(Sketcher.Constraint("Horizontal", 1))
sketch4.addConstraint(Sketcher.Constraint("Vertical", 2))
sketch4.addConstraint(Sketcher.Constraint("Horizontal", 3))
sketch4.addConstraint(Sketcher.Constraint("Vertical", 4))
sketch4.addConstraint(Sketcher.Constraint("Horizontal", 5))
sketch4.addConstraint(Sketcher.Constraint("Vertical", 6))
sketch4.addConstraint(Sketcher.Constraint("Horizontal", 7))
sketch4.addConstraint(Sketcher.Constraint("PointOnObject", 0, 2, -1))
sketch4.addConstraint(Sketcher.Constraint("PointOnObject", 4, 2, -1))
sketch4.addConstraint(Sketcher.Constraint("Horizontal", 3, 2, 6, 2))
sketch4.addConstraint(Sketcher.Constraint("Equal", 3, 5))
sketch4.addConstraint(Sketcher.Constraint("DistanceX", 1, 2, 1, 1, 1.0))
sketch4.addConstraint(Sketcher.Constraint("DistanceY", 0, 2, 0, 1, 2.0))
sketch4.addConstraint(Sketcher.Constraint("DistanceX", 0, 2, -1, 1, 57.0))
sketch4.addConstraint(Sketcher.Constraint("DistanceX", 4, 2, -1, 1, 3.0))
pad3 = doc.addObject("PartDesign::Pad", "Pad002")
body.addObject(pad3)
pad3.Profile = sketch4
pad3.Length = 136

sketch5 = doc.addObject("Sketcher::SketchObject", "Sketch004")
body.addObject(sketch5)
sketch5.AttachmentSupport = (doc.XY_Plane, [""])
sketch5.MapMode = "FlatFace"
sketch5.AttachmentOffset = App.Placement(App.Vector(0, 0, 72.545455), App.Rotation())
sketch5.addGeometry(Part.LineSegment(App.Vector(-66.737677, 9.812048, 0), App.Vector(-66.737677, -16.613581, 0)), False)
sketch5.addGeometry(Part.LineSegment(App.Vector(-66.737677, -16.613581, 0), App.Vector(2.058159, -16.613581, 0)), False)
sketch5.addGeometry(Part.LineSegment(App.Vector(2.058159, -16.613581, 0), App.Vector(2.058159, 9.812048, 0)), False)
sketch5.addGeometry(Part.LineSegment(App.Vector(2.058159, 9.812048, 0), App.Vector(-66.737677, 9.812048, 0)), False)
sketch5.addConstraint(Sketcher.Constraint("Coincident", 0, 2, 1, 1))
sketch5.addConstraint(Sketcher.Constraint("Coincident", 1, 2, 2, 1))
sketch5.addConstraint(Sketcher.Constraint("Coincident", 2, 2, 3, 1))
sketch5.addConstraint(Sketcher.Constraint("Coincident", 3, 2, 0, 1))
sketch5.addConstraint(Sketcher.Constraint("Vertical", 0))
sketch5.addConstraint(Sketcher.Constraint("Horizontal", 1))
sketch5.addConstraint(Sketcher.Constraint("Vertical", 2))
sketch5.addConstraint(Sketcher.Constraint("Horizontal", 3))
sketch5.addConstraint(Sketcher.Constraint("DistanceY", 0, 2, 0, 1, 26.425629))
sketch5.addConstraint(Sketcher.Constraint("DistanceX", 1, 1, 1, 2, 68.795835))
sketch5.addConstraint(Sketcher.Constraint("DistanceY", 0, 2, -1, 1, 16.613581))
sketch5.addConstraint(Sketcher.Constraint("DistanceX", -1, 1, 1, 2, 2.058159))
pocket2 = doc.addObject("PartDesign::Pocket", "Pocket001")
body.addObject(pocket2)
pocket2.Profile = sketch5
pocket2.Length = 0.4

sketch6 = doc.addObject("Sketcher::SketchObject", "Sketch005")
body.addObject(sketch6)
sketch6.AttachmentSupport = (doc.XY_Plane, [""])
sketch6.MapMode = "FlatFace"
sketch6.AttachmentOffset = App.Placement(App.Vector(0, 0, -63.454545), App.Rotation())
sketch6.addGeometry(Part.LineSegment(App.Vector(-3, 2, 0), App.Vector(-3, 0, 0)), False)
sketch6.addGeometry(Part.LineSegment(App.Vector(-3, 0, 0), App.Vector(-5, 0, 0)), False)
sketch6.addGeometry(Part.LineSegment(App.Vector(-5, 0, 0), App.Vector(-5, 2, 0)), False)
sketch6.addGeometry(Part.LineSegment(App.Vector(-5, 2, 0), App.Vector(-3, 2, 0)), False)
sketch6.addGeometry(Part.LineSegment(App.Vector(-56, 2, 0), App.Vector(-56, 0, 0)), False)
sketch6.addGeometry(Part.LineSegment(App.Vector(-56, 0, 0), App.Vector(-58, 0, 0)), False)
sketch6.addGeometry(Part.LineSegment(App.Vector(-58, 0, 0), App.Vector(-58, 2, 0)), False)
sketch6.addGeometry(Part.LineSegment(App.Vector(-58, 2, 0), App.Vector(-56, 2, 0)), False)
sketch6.addConstraint(Sketcher.Constraint("Coincident", 0, 2, 1, 1))
sketch6.addConstraint(Sketcher.Constraint("Coincident", 1, 2, 2, 1))
sketch6.addConstraint(Sketcher.Constraint("Coincident", 2, 2, 3, 1))
sketch6.addConstraint(Sketcher.Constraint("Coincident", 3, 2, 0, 1))
sketch6.addConstraint(Sketcher.Constraint("Coincident", 4, 2, 5, 1))
sketch6.addConstraint(Sketcher.Constraint("Coincident", 5, 2, 6, 1))
sketch6.addConstraint(Sketcher.Constraint("Coincident", 6, 2, 7, 1))
sketch6.addConstraint(Sketcher.Constraint("Coincident", 7, 2, 4, 1))
sketch6.addConstraint(Sketcher.Constraint("Vertical", 0))
sketch6.addConstraint(Sketcher.Constraint("Horizontal", 1))
sketch6.addConstraint(Sketcher.Constraint("Vertical", 2))
sketch6.addConstraint(Sketcher.Constraint("Horizontal", 3))
sketch6.addConstraint(Sketcher.Constraint("Vertical", 4))
sketch6.addConstraint(Sketcher.Constraint("Horizontal", 5))
sketch6.addConstraint(Sketcher.Constraint("Vertical", 6))
sketch6.addConstraint(Sketcher.Constraint("Horizontal", 7))
sketch6.addConstraint(Sketcher.Constraint("PointOnObject", 0, 2, -1))
sketch6.addConstraint(Sketcher.Constraint("PointOnObject", 4, 2, -1))
sketch6.addConstraint(Sketcher.Constraint("Horizontal", 3, 2, 6, 2))
sketch6.addConstraint(Sketcher.Constraint("Equal", 3, 5))
sketch6.addConstraint(Sketcher.Constraint("Equal", 7, 0))
sketch6.addConstraint(Sketcher.Constraint("DistanceX", 1, 2, 1, 1, 2.0))
sketch6.addConstraint(Sketcher.Constraint("DistanceX", 0, 2, -1, 1, 3.0))
sketch6.addConstraint(Sketcher.Constraint("DistanceX", 4, 2, -1, 1, 56.0))
pocket3 = doc.addObject("PartDesign::Pocket", "Pocket002")
body.addObject(pocket3)
pocket3.Profile = sketch6
pocket3.Length = 135.6
pocket3.Reversed = True

sketch7 = doc.addObject("Sketcher::SketchObject", "Sketch006")
body.addObject(sketch7)
sketch7.AttachmentSupport = (doc.YZ_Plane, [""])
sketch7.MapMode = "FlatFace"
sketch7.AttachmentOffset = App.Placement(App.Vector(0, 0, -30.5), App.Rotation())
sketch7.addGeometry(Part.Circle(App.Vector(2.5, 72.145455, 0), App.Vector(0, 0, 1), 1.5), False)
sketch7.addConstraint(Sketcher.Constraint("Diameter", 0, 3.0))
sketch7.addConstraint(Sketcher.Constraint("DistanceX", -1, 1, 0, 3, 2.5))
sketch7.addConstraint(Sketcher.Constraint("DistanceY", -1, 1, 0, 3, 72.145455))
pad4 = doc.addObject("PartDesign::Pad", "Pad003")
body.addObject(pad4)
pad4.Profile = sketch7
pad4.Type = "TwoLengths"
pad4.Length = 10
pad4.Length2 = 10
pad4.Reversed = True

sketch8 = doc.addObject("Sketcher::SketchObject", "Sketch007")
body.addObject(sketch8)
sketch8.AttachmentSupport = (doc.YZ_Plane, [""])
sketch8.MapMode = "FlatFace"
sketch8.AttachmentOffset = App.Placement(App.Vector(0, 0, -40.5), App.Rotation())
sketch8.addGeometry(Part.Circle(App.Vector(3, 72.145455, 0), App.Vector(0, 0, 1), 0.62), False)
sketch8.addConstraint(Sketcher.Constraint("Diameter", 0, 1.24))
sketch8.addConstraint(Sketcher.Constraint("DistanceX", -1, 1, 0, 3, 3.0))
sketch8.addConstraint(Sketcher.Constraint("DistanceY", -1, 1, 0, 3, 72.145455))
pocket4 = doc.addObject("PartDesign::Pocket", "Pocket003")
body.addObject(pocket4)
pocket4.Profile = sketch8
pocket4.Length = 20
pocket4.Reversed = True

doc.recompute()
